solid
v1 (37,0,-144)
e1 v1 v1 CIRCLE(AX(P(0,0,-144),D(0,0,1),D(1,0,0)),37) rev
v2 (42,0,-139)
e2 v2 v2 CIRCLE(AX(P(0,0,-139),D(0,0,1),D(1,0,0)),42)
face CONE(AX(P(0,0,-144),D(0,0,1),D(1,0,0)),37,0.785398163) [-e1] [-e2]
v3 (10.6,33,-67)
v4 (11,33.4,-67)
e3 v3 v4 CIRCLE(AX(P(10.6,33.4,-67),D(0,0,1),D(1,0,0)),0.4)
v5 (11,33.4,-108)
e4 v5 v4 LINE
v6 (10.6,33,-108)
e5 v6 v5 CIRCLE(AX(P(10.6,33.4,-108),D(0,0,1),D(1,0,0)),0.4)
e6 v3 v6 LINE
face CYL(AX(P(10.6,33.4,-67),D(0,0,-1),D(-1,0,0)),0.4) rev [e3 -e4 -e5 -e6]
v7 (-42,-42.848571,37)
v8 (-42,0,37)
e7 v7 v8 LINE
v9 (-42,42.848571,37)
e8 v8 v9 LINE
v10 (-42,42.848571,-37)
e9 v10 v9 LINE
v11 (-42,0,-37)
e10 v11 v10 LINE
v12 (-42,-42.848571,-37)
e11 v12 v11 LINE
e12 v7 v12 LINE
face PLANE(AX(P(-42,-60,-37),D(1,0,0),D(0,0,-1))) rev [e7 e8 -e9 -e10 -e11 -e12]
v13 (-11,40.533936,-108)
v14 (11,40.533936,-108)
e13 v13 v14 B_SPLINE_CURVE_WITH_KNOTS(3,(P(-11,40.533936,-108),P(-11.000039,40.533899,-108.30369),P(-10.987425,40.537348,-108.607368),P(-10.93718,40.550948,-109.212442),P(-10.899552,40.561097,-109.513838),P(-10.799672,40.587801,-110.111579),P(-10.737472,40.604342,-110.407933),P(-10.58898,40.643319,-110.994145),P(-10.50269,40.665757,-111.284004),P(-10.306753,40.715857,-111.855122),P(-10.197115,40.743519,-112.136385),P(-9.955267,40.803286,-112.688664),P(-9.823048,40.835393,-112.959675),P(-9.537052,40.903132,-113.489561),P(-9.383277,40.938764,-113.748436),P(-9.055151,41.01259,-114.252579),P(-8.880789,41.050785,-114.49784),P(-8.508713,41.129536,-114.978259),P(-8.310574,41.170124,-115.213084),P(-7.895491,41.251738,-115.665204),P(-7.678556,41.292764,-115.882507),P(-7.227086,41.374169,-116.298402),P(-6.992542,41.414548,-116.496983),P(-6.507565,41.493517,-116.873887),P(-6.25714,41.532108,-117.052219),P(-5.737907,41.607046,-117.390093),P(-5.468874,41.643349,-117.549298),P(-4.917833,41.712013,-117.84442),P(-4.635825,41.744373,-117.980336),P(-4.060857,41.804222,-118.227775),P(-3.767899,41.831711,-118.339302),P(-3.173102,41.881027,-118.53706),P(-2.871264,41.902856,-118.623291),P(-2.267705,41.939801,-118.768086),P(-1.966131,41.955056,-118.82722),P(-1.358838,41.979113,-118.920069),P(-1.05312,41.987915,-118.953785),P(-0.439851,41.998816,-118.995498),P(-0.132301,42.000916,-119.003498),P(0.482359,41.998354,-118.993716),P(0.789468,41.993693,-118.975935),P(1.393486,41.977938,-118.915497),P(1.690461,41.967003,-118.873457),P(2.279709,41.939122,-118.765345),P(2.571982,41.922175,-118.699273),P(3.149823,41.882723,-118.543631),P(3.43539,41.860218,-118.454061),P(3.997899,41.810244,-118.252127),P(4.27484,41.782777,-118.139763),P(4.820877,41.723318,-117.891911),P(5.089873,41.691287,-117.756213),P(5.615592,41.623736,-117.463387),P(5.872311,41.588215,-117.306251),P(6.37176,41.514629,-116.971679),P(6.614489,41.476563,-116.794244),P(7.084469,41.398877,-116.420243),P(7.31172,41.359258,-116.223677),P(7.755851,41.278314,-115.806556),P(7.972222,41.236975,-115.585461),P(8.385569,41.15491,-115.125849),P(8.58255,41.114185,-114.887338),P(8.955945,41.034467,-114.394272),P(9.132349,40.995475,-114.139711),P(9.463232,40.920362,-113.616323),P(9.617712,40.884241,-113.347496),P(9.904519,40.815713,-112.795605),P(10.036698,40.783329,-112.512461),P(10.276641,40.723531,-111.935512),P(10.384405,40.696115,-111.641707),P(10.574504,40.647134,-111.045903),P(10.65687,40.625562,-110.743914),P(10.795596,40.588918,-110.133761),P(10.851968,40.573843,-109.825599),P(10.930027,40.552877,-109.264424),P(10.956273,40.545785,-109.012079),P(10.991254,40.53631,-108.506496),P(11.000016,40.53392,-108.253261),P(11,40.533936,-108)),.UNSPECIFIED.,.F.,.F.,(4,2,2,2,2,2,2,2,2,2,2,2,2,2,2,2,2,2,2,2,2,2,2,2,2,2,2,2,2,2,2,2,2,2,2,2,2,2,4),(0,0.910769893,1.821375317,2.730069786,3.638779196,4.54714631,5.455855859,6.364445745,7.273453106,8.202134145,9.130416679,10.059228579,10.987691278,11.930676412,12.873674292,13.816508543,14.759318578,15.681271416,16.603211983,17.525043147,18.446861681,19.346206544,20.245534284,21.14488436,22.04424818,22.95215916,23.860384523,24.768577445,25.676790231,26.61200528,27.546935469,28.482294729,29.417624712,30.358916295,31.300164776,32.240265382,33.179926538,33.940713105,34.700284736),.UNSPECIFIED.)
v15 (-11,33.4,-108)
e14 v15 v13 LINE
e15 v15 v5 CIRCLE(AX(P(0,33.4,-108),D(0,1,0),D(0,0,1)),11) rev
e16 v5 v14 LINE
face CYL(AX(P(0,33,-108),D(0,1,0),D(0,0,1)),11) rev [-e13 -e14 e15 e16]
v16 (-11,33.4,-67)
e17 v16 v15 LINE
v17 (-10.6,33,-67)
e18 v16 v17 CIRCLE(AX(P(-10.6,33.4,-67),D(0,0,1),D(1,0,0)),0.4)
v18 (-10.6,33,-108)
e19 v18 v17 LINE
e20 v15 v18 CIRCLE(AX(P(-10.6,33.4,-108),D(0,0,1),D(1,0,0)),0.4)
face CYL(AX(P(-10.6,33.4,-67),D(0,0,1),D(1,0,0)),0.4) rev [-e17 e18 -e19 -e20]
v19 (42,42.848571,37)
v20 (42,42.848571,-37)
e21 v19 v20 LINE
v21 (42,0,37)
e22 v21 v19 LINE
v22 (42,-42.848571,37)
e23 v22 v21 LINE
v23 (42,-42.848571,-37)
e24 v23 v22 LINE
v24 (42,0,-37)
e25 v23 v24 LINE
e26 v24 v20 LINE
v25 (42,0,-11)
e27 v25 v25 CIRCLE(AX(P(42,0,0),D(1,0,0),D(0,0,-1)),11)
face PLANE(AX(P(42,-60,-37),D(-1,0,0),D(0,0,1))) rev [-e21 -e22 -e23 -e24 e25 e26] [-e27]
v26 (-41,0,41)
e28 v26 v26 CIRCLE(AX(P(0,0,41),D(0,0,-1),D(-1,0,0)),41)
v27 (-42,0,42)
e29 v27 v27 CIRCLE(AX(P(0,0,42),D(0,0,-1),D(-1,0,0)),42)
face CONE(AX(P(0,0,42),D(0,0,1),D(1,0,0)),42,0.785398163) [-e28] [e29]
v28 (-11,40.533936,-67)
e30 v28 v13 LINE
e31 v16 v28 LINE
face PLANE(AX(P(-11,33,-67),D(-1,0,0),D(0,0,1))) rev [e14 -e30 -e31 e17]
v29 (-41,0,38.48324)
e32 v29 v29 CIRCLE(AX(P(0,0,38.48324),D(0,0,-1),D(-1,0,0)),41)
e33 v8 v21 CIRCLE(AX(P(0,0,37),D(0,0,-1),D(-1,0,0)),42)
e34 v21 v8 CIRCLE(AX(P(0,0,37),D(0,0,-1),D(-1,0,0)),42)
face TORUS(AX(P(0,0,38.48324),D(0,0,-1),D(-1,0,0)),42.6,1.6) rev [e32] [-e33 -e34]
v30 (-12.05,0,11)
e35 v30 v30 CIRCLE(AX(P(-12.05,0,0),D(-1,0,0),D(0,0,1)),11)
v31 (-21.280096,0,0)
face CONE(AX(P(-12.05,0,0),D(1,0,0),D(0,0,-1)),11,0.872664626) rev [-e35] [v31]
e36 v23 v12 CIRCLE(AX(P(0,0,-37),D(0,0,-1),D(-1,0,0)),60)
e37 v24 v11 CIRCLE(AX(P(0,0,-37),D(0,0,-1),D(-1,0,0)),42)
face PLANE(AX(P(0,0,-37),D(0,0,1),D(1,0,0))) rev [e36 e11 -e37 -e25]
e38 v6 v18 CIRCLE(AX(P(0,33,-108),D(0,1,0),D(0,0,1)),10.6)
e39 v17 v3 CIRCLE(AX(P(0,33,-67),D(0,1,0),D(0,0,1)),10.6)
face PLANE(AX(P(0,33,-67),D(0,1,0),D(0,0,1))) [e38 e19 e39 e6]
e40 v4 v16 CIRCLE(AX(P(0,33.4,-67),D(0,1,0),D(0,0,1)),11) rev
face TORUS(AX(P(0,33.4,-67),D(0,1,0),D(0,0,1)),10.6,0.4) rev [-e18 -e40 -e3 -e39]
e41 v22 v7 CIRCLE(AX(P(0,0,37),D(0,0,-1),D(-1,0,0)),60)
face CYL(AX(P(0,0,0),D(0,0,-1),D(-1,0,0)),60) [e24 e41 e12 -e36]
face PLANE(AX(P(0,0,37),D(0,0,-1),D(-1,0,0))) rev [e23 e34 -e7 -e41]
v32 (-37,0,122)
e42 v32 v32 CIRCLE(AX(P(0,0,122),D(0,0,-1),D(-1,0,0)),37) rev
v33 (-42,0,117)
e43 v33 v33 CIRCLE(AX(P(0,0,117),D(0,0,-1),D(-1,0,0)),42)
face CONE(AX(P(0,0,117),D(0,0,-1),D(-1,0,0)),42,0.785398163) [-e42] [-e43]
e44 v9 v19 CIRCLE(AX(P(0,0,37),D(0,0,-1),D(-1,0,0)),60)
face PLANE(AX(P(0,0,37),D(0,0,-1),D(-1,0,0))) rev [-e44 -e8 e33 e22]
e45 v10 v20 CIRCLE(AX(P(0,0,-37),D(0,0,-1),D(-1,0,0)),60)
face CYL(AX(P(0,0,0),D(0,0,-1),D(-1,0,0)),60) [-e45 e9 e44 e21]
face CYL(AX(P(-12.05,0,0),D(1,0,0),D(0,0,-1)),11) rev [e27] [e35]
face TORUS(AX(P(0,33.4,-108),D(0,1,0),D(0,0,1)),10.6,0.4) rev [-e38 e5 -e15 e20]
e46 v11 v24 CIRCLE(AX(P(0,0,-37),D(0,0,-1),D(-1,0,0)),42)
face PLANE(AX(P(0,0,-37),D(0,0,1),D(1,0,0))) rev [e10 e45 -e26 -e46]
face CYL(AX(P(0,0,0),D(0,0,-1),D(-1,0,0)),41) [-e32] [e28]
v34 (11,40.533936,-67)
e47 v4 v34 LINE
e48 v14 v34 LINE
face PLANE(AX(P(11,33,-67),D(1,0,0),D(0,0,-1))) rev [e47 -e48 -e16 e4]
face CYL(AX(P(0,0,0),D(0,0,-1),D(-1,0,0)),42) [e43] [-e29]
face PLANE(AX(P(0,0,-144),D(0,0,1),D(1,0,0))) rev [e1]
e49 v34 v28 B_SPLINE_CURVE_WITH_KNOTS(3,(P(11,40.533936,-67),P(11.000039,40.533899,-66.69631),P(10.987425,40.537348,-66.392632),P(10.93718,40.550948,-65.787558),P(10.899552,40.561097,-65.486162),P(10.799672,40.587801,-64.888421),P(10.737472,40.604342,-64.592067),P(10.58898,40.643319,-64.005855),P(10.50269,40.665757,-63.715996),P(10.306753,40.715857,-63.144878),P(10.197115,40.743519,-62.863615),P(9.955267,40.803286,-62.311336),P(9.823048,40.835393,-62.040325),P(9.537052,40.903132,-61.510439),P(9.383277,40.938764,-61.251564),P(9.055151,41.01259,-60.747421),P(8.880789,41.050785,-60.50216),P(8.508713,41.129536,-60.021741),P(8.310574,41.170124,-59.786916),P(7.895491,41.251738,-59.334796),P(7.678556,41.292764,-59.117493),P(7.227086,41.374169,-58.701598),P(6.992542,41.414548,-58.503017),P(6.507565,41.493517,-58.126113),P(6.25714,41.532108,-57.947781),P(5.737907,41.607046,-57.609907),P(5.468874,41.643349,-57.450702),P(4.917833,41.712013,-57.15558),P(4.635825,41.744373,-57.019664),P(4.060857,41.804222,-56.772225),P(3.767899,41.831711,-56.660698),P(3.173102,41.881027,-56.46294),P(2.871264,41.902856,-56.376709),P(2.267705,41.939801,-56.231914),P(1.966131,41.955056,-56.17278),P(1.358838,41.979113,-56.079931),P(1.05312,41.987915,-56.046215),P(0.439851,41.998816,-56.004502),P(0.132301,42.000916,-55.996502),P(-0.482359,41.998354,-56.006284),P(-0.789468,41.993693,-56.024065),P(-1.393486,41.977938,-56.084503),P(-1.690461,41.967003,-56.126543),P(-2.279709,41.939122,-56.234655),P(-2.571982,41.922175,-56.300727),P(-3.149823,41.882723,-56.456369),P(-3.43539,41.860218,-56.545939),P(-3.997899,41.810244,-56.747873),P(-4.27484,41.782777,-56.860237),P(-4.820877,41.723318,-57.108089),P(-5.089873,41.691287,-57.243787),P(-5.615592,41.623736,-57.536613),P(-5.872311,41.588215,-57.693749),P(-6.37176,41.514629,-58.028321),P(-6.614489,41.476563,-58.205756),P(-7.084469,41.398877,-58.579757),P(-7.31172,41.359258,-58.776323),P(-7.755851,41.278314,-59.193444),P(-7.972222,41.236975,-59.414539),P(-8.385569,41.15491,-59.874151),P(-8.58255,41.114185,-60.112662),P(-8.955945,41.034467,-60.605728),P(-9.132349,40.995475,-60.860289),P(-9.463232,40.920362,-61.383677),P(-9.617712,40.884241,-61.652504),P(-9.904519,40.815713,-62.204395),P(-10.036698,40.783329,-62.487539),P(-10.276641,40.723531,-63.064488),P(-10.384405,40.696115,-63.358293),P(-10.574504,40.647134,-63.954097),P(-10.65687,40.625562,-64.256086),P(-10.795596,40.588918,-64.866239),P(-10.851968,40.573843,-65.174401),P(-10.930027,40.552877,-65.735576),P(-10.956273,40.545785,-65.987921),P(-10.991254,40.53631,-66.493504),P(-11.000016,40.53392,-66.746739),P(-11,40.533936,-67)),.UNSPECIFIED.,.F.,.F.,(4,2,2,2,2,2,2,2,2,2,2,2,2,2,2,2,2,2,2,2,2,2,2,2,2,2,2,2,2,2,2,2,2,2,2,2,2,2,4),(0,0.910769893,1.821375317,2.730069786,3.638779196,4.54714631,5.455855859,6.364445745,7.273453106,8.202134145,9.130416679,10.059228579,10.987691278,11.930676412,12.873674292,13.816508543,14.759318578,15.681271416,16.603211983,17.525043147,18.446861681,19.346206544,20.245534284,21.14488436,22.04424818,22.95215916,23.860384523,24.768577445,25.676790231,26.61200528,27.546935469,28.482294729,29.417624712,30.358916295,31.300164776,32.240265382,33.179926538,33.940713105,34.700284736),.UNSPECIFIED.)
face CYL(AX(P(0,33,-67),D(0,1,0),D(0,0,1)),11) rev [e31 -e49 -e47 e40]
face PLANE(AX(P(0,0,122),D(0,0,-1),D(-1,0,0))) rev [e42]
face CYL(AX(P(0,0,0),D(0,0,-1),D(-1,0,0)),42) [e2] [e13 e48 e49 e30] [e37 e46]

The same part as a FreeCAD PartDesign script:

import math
import FreeCAD as App
import Part
import Sketcher
Q = App.Units.Quantity


def edges_at(feature, points):
    """Names of the edges that pass closest to the given points."""
    edges = feature.Shape.Edges
    near = lambda p: min(range(len(edges)), key=lambda i: edges[i].distToShape(Part.Vertex(*p))[0])
    return sorted({f"Edge{near(p) + 1}" for p in points})


def add_polygon(sketch, points):
    """Adds a closed chain of lines whose ends are joined by coincident constraints."""
    first, n = sketch.GeometryCount, len(points)
    for a, b in zip(points, points[1:] + points[:1]):
        sketch.addGeometry(Part.LineSegment(App.Vector(*a, 0), App.Vector(*b, 0)), False)
    for i in range(n):
        sketch.addConstraint(Sketcher.Constraint("Coincident", first + i, 2, first + (i + 1) % n, 1))

doc = App.newDocument("Part")
body = doc.addObject("PartDesign::Body", "Body")

# Sketch on YZ plane
sketch1 = doc.addObject("Sketcher::SketchObject", "Sketch")
body.addObject(sketch1)
sketch1.AttachmentSupport = (doc.YZ_Plane, [""])
sketch1.MapMode = "FlatFace"
add_polygon(sketch1, [(0, 122), (0, -144), (42, -144), (42, -37), (60, -37), (60, 37), (42, 37), (42, 122)])  # lines 0-7
sketch1.addConstraint(Sketcher.Constraint("Vertical", 0))
sketch1.addConstraint(Sketcher.Constraint("Horizontal", 1))
sketch1.addConstraint(Sketcher.Constraint("Vertical", 2))
sketch1.addConstraint(Sketcher.Constraint("Horizontal", 3))
sketch1.addConstraint(Sketcher.Constraint("Vertical", 4))
sketch1.addConstraint(Sketcher.Constraint("Horizontal", 5))
sketch1.addConstraint(Sketcher.Constraint("Vertical", 6))
sketch1.addConstraint(Sketcher.Constraint("Horizontal", 7))
sketch1.addConstraint(Sketcher.Constraint("Symmetric", 2, 2, 5, 2, -1))
sketch1.addConstraint(Sketcher.Constraint("PointOnObject", 0, 2, -2))
sketch1.addConstraint(Sketcher.Constraint("DistanceX", 1, 1, 1, 2, 42.0))
sketch1.addConstraint(Sketcher.Constraint("DistanceX", 3, 1, 3, 2, 18.0))
sketch1.addConstraint(Sketcher.Constraint("DistanceY", 0, 2, 0, 1, 266.0))
sketch1.addConstraint(Sketcher.Constraint("DistanceY", 2, 1, 2, 2, 107.0))
sketch1.addConstraint(Sketcher.Constraint("DistanceY", 4, 1, 4, 2, 74.0))
revolution = doc.addObject("PartDesign::Revolution", "Revolution")
body.addObject(revolution)
revolution.Profile = sketch1
revolution.ReferenceAxis = (sketch1, ["V_Axis"])
revolution.Angle = 360

# Sketch on XZ plane
sketch2 = doc.addObject("Sketcher::SketchObject", "Sketch001")
body.addObject(sketch2)
sketch2.AttachmentSupport = (doc.XZ_Plane, [""])
sketch2.MapMode = "FlatFace"
sketch2.AttachmentOffset = App.Placement(App.Vector(0, 0, -42), App.Rotation())
sketch2.addGeometry(Part.LineSegment(App.Vector(-11, -108, 0), App.Vector(-11, -67, 0)), False)
sketch2.addGeometry(Part.ArcOfCircle(Part.Circle(App.Vector(0, -67, 0), App.Vector(0, 0, 1), 11), math.radians(0), math.radians(180)), False)
sketch2.addGeometry(Part.LineSegment(App.Vector(11, -67, 0), App.Vector(11, -108, 0)), False)
sketch2.addGeometry(Part.ArcOfCircle(Part.Circle(App.Vector(0, -108, 0), App.Vector(0, 0, 1), 11), math.radians(180), math.radians(360)), False)
sketch2.addConstraint(Sketcher.Constraint("Tangent", 0, 2, 1, 2))
sketch2.addConstraint(Sketcher.Constraint("Tangent", 1, 1, 2, 1))
sketch2.addConstraint(Sketcher.Constraint("Tangent", 2, 2, 3, 2))
sketch2.addConstraint(Sketcher.Constraint("Tangent", 3, 1, 0, 1))
sketch2.addConstraint(Sketcher.Constraint("Vertical", 0))
sketch2.addConstraint(Sketcher.Constraint("Vertical", 2))
sketch2.addConstraint(Sketcher.Constraint("PointOnObject", 1, 3, -2))
sketch2.addConstraint(Sketcher.Constraint("Radius", 1, 11.0))
sketch2.addConstraint(Sketcher.Constraint("DistanceY", 0, 1, 0, 2, 41.0))
sketch2.addConstraint(Sketcher.Constraint("DistanceY", 1, 3, -1, 1, 67.0))
pocket1 = doc.addObject("PartDesign::Pocket", "Pocket")
body.addObject(pocket1)
pocket1.Profile = sketch2
pocket1.Length = 9
pocket1.Reversed = True
doc.recompute()

fillet = doc.addObject("PartDesign::Fillet", "Fillet")
body.addObject(fillet)
fillet.Base = (pocket1, edges_at(pocket1, [
    (0, 33, -56),
    (-11, 33, -87.5),
    (0, 33, -119),
    (11, 33, -87.5),
]))
fillet.Radius = 0.4
doc.recompute()

chamfer = doc.addObject("PartDesign::Chamfer", "Chamfer")
body.addObject(chamfer)
chamfer.Base = (fillet, edges_at(fillet, [(0, -42, -144)]))
chamfer.Size = 5
doc.recompute()

chamfer2 = doc.addObject("PartDesign::Chamfer", "Chamfer001")
body.addObject(chamfer2)
chamfer2.Base = (chamfer, edges_at(chamfer, [(0, -42, 122)]))
chamfer2.Size = 5

# Sketch on YZ plane
sketch3 = doc.addObject("Sketcher::SketchObject", "Sketch002")
body.addObject(sketch3)
sketch3.AttachmentSupport = (doc.YZ_Plane, [""])
sketch3.MapMode = "FlatFace"
sketch3.addGeometry(Part.LineSegment(App.Vector(42, 37, 0), App.Vector(42, 42, 0)), False)
sketch3.addGeometry(Part.LineSegment(App.Vector(42, 42, 0), App.Vector(41, 41, 0)), False)
sketch3.addGeometry(Part.LineSegment(App.Vector(41, 41, 0), App.Vector(41, 38.5, 0)), False)
sketch3.addGeometry(Part.ArcOfCircle(Part.Circle(App.Vector(42.6, 38.5, 0), App.Vector(0, 0, 1), 1.6), math.radians(180), math.radians(248)), False)
sketch3.addConstraint(Sketcher.Constraint("Coincident", 0, 2, 1, 1))
sketch3.addConstraint(Sketcher.Constraint("Coincident", 1, 2, 2, 1))
sketch3.addConstraint(Sketcher.Constraint("Tangent", 2, 2, 3, 1))
sketch3.addConstraint(Sketcher.Constraint("Coincident", 3, 2, 0, 1))
sketch3.addConstraint(Sketcher.Constraint("Vertical", 0))
sketch3.addConstraint(Sketcher.Constraint("Vertical", 2))
sketch3.addConstraint(Sketcher.Constraint("Radius", 3, 1.6))
sketch3.addConstraint(Sketcher.Constraint("DistanceY", 0, 1, 0, 2, 5.0))
sketch3.addConstraint(Sketcher.Constraint("Angle", 1, Q("-135 deg")))
sketch3.addConstraint(Sketcher.Constraint("DistanceX", -1, 1, 0, 2, 42.0))
sketch3.addConstraint(Sketcher.Constraint("DistanceY", -1, 1, 0, 2, 42.0))
sketch3.addConstraint(Sketcher.Constraint("DistanceX", -1, 1, 1, 2, 41.0))
groove = doc.addObject("PartDesign::Groove", "Groove")
body.addObject(groove)
groove.Profile = sketch3
groove.ReferenceAxis = (sketch3, ["V_Axis"])
groove.Angle = 360

# Sketch on XZ plane
sketch4 = doc.addObject("Sketcher::SketchObject", "Sketch003")
body.addObject(sketch4)
sketch4.AttachmentSupport = (doc.XZ_Plane, [""])
sketch4.MapMode = "FlatFace"
sketch4.AttachmentOffset = App.Placement(App.Vector(0, 0, -60), App.Rotation())
add_polygon(sketch4, [(-60, -37), (-60, 37), (-42, 37), (-42, -37)])  # lines 0-3
add_polygon(sketch4, [(42, -37), (42, 37), (60, 37), (60, -37)])  # lines 4-7
sketch4.addConstraint(Sketcher.Constraint("Vertical", 0))
sketch4.addConstraint(Sketcher.Constraint("Horizontal", 1))
sketch4.addConstraint(Sketcher.Constraint("Vertical", 2))
sketch4.addConstraint(Sketcher.Constraint("Horizontal", 3))
sketch4.addConstraint(Sketcher.Constraint("Vertical", 4))
sketch4.addConstraint(Sketcher.Constraint("Horizontal", 5))
sketch4.addConstraint(Sketcher.Constraint("Vertical", 6))
sketch4.addConstraint(Sketcher.Constraint("Horizontal", 7))
sketch4.addConstraint(Sketcher.Constraint("Symmetric", 2, 2, 4, 2, -1, 1))
sketch4.addConstraint(Sketcher.Constraint("Symmetric", 0, 2, 6, 2, -1, 1))
sketch4.addConstraint(Sketcher.Constraint("Horizontal", 1, 2, 4, 2))
sketch4.addConstraint(Sketcher.Constraint("DistanceX", 1, 1, 1, 2, 18.0))
sketch4.addConstraint(Sketcher.Constraint("DistanceY", 0, 1, 0, 2, 74.0))
sketch4.addConstraint(Sketcher.Constraint("DistanceX", 0, 2, -1, 1, 60.0))
pocket2 = doc.addObject("PartDesign::Pocket", "Pocket001")
body.addObject(pocket2)
pocket2.Profile = sketch4
pocket2.Length = 120
pocket2.Reversed = True

# Sketch on YZ plane
sketch5 = doc.addObject("Sketcher::SketchObject", "Sketch004")
body.addObject(sketch5)
sketch5.AttachmentSupport = (doc.YZ_Plane, [""])
sketch5.MapMode = "FlatFace"
sketch5.AttachmentOffset = App.Placement(App.Vector(0, 0, 42), App.Rotation())
sketch5.addGeometry(Part.Circle(App.Vector(0, 0, 0), App.Vector(0, 0, 1), 11), False)
sketch5.addConstraint(Sketcher.Constraint("Coincident", 0, 3, -1, 1))
sketch5.addConstraint(Sketcher.Constraint("Diameter", 0, 22.0))
pocket3 = doc.addObject("PartDesign::Pocket", "Pocket002")
body.addObject(pocket3)
pocket3.Profile = sketch5
pocket3.Length = 54.05

# Sketch on XY plane
sketch6 = doc.addObject("Sketcher::SketchObject", "Sketch005")
body.addObject(sketch6)
sketch6.AttachmentSupport = (doc.XY_Plane, [""])
sketch6.MapMode = "FlatFace"
add_polygon(sketch6, [(-12, 0), (-12, 11), (-21, 0)])  # lines 0-2
sketch6.addConstraint(Sketcher.Constraint("Vertical", 0))
sketch6.addConstraint(Sketcher.Constraint("Horizontal", 2))
sketch6.addConstraint(Sketcher.Constraint("PointOnObject", 1, 2, -1))
sketch6.addConstraint(Sketcher.Constraint("DistanceY", 0, 1, 0, 2, 11.0))
sketch6.addConstraint(Sketcher.Constraint("Angle", 1, Q("-130 deg")))
sketch6.addConstraint(Sketcher.Constraint("DistanceX", 0, 2, -1, 1, 12.05))
groove2 = doc.addObject("PartDesign::Groove", "Groove001")
body.addObject(groove2)
groove2.Profile = sketch6
groove2.ReferenceAxis = (sketch6, ["H_Axis"])
groove2.Angle = 360

doc.recompute()
